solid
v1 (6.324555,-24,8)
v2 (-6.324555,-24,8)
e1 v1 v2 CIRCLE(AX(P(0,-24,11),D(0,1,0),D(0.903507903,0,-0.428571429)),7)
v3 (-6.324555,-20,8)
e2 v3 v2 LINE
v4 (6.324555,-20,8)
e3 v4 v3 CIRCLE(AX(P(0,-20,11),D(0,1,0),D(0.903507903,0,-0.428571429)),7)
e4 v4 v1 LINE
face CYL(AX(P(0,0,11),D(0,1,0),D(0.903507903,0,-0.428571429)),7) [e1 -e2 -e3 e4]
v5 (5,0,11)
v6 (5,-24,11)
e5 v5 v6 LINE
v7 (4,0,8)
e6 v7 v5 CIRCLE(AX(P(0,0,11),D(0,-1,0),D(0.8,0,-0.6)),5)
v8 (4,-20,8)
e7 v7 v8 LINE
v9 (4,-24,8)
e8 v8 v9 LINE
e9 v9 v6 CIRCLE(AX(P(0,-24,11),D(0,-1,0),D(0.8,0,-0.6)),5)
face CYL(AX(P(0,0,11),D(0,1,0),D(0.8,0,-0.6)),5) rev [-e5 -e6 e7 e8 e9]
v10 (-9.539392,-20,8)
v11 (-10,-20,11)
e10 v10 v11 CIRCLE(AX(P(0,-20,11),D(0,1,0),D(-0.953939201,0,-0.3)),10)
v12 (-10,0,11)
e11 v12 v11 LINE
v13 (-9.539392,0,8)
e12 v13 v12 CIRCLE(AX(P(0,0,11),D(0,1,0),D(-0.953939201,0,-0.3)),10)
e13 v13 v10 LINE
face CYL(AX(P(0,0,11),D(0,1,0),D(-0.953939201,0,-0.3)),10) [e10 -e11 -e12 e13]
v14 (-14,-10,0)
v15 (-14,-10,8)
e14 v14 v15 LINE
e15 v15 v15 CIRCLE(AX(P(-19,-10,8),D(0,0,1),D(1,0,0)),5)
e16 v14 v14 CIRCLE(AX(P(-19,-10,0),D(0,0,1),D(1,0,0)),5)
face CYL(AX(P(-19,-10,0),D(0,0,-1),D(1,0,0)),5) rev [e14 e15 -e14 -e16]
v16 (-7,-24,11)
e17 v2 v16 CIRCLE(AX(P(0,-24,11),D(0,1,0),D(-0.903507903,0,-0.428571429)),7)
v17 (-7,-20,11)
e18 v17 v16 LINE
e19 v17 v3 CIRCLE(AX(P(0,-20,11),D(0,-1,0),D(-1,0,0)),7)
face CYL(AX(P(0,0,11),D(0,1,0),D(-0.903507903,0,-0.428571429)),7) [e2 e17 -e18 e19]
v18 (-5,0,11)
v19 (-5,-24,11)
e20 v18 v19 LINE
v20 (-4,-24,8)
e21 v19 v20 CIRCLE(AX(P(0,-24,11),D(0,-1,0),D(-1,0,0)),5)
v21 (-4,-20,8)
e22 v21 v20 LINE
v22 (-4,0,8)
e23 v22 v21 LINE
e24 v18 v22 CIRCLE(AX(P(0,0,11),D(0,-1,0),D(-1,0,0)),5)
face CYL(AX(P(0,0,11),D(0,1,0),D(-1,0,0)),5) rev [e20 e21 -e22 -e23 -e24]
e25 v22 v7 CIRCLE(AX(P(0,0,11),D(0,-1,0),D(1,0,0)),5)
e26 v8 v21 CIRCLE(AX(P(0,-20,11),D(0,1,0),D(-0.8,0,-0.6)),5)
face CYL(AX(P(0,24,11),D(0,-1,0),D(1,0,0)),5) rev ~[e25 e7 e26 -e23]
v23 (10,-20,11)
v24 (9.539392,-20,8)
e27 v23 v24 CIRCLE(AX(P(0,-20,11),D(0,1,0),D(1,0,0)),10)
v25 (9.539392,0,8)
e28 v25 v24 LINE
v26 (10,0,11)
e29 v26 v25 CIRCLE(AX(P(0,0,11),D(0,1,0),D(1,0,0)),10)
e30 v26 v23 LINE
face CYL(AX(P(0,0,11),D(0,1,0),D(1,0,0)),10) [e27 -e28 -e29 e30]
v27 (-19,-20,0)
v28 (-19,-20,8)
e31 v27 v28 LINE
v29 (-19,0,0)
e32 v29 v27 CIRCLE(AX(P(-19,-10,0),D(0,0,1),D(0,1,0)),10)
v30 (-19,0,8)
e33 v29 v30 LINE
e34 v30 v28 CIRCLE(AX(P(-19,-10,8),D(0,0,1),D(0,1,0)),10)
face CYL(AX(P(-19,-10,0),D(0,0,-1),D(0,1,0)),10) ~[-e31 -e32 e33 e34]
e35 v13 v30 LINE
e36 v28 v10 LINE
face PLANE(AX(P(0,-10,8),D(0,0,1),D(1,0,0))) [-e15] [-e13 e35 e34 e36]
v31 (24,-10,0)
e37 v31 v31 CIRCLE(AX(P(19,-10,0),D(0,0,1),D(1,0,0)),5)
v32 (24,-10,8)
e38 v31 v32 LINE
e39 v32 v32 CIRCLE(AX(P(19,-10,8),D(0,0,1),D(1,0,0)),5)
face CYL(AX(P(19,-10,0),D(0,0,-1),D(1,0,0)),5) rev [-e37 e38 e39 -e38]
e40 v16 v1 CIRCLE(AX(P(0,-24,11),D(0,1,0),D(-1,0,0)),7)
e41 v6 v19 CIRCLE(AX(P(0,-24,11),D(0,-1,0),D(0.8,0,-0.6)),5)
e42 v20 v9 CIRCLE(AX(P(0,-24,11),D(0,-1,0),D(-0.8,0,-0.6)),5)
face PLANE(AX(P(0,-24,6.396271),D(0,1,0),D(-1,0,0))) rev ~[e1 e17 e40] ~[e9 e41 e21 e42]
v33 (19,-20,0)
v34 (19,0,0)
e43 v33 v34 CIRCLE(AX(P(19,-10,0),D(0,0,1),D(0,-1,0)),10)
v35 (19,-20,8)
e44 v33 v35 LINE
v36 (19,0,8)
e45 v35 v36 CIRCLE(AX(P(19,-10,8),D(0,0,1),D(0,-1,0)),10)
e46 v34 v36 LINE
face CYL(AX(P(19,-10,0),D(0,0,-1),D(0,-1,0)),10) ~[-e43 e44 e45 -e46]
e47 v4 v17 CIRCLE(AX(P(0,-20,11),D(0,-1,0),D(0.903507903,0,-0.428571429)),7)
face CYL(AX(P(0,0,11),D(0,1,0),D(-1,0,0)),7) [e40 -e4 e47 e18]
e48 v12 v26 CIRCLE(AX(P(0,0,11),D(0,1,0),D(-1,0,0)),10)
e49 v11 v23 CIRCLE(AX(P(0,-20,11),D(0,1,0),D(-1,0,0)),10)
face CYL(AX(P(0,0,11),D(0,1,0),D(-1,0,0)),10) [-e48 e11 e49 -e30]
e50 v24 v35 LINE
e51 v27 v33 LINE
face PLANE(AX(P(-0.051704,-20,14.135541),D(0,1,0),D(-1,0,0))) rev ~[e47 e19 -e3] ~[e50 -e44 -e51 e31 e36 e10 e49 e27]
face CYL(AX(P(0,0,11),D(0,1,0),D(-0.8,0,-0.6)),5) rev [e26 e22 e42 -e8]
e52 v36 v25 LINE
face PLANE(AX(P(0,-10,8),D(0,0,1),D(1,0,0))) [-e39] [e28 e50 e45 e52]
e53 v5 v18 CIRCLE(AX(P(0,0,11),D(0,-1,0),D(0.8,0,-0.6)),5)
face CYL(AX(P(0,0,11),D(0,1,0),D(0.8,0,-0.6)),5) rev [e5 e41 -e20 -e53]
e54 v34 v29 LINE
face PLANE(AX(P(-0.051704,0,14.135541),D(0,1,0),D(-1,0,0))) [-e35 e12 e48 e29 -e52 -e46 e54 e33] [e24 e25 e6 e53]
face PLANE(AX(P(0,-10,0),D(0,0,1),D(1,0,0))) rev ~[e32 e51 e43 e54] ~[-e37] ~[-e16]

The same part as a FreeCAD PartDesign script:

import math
import FreeCAD as App
import Part
import Sketcher
from FreeCAD import Vector
Q = App.Units.Quantity

doc = App.newDocument("Part")
body = doc.addObject("PartDesign::Body", "Body")

# Sketch on XY plane
sketch1 = body.newObject("Sketcher::SketchObject", "Sketch")
sketch1.AttachmentSupport = (doc.getObject("XY_Plane"), [""])
sketch1.MapMode = "FlatFace"
sketch1.addGeometry([
    Part.LineSegment(Vector(19, 0, 0), Vector(-19, 0, 0)),  # 0
    Part.ArcOfCircle(Part.Circle(Vector(-19, -10, 0), Vector(0, 0, 1), 10), math.radians(90), math.radians(270)),  # 1
    Part.LineSegment(Vector(-19, -20, 0), Vector(19, -20, 0)),  # 2
    Part.ArcOfCircle(Part.Circle(Vector(19, -10, 0), Vector(0, 0, 1), 10), math.radians(-90), math.radians(90)),  # 3
    Part.Circle(Vector(-19, -10, 0), Vector(0, 0, 1), 5),  # 4
    Part.Circle(Vector(19, -10, 0), Vector(0, 0, 1), 5),  # 5
], False)
sketch1.addConstraint([
    Sketcher.Constraint("Tangent", 0, 2, 1, 1),
    Sketcher.Constraint("Tangent", 1, 2, 2, 1),
    Sketcher.Constraint("Tangent", 2, 2, 3, 1),
    Sketcher.Constraint("Tangent", 3, 2, 0, 1),
    Sketcher.Constraint("Horizontal", 0),
    Sketcher.Constraint("Horizontal", 2),
    Sketcher.Constraint("Coincident", 4, 3, 1, 3),
    Sketcher.Constraint("Coincident", 5, 3, 3, 3),
    Sketcher.Constraint("Equal", 4, 5),
    Sketcher.Constraint("Symmetric", 0, 2, 3, 2, -1, 1),
    Sketcher.Constraint("Diameter", 4, Q("10 mm")),
    Sketcher.Constraint("Radius", 1, Q("10 mm")),
    Sketcher.Constraint("DistanceX", 0, 2, 0, 1, Q("38 mm")),
])
pad1 = body.newObject("PartDesign::Pad", "Pad")
pad1.Profile = sketch1
pad1.Length = 8

# Sketch on XZ plane
sketch2 = body.newObject("Sketcher::SketchObject", "Sketch001")
sketch2.AttachmentSupport = (doc.getObject("XZ_Plane"), [""])
sketch2.MapMode = "FlatFace"
sketch2.addGeometry([
    Part.ArcOfCircle(Part.Circle(Vector(0, 11, 0), Vector(0, 0, 1), 7), math.radians(-155), math.radians(-25)),  # 0
    Part.ArcOfCircle(Part.Circle(Vector(0, 11, 0), Vector(0, 0, 1), 7), math.radians(180), math.radians(205)),  # 1
    Part.ArcOfCircle(Part.Circle(Vector(0, 11, 0), Vector(0, 0, 1), 7), math.radians(-25), math.radians(180)),  # 2
    Part.ArcOfCircle(Part.Circle(Vector(0, 11, 0), Vector(0, 0, 1), 5), math.radians(-143), math.radians(-37)),  # 3
    Part.ArcOfCircle(Part.Circle(Vector(0, 11, 0), Vector(0, 0, 1), 5), math.radians(-37), math.radians(180)),  # 4
    Part.ArcOfCircle(Part.Circle(Vector(0, 11, 0), Vector(0, 0, 1), 5), math.radians(180), math.radians(217)),  # 5
], False)
sketch2.addConstraint([
    Sketcher.Constraint("Tangent", 0, 1, 1, 2),
    Sketcher.Constraint("Tangent", 1, 1, 2, 2),
    Sketcher.Constraint("Tangent", 2, 1, 0, 2),
    Sketcher.Constraint("Tangent", 3, 2, 4, 1),
    Sketcher.Constraint("Tangent", 4, 2, 5, 1),
    Sketcher.Constraint("Tangent", 5, 2, 3, 1),
    Sketcher.Constraint("Coincident", 3, 3, 0, 3),
    Sketcher.Constraint("Symmetric", 0, 1, 2, 1, -2),
    Sketcher.Constraint("Horizontal", 5, 3, 1, 1),
    Sketcher.Constraint("Horizontal", 2, 1, 3, 2),
    Sketcher.Constraint("Horizontal", 1, 1, 4, 2),
    Sketcher.Constraint("Horizontal", 3, 2, 5, 2),
    Sketcher.Constraint("Radius", 0, Q("7 mm")),
    Sketcher.Constraint("Radius", 3, Q("5 mm")),
    Sketcher.Constraint("DistanceY", -1, 1, 0, 3, Q("11 mm")),
    Sketcher.Constraint("DistanceY", -1, 1, 0, 1, Q("8 mm")),
])
pad2 = body.newObject("PartDesign::Pad", "Pad001")
pad2.Profile = sketch2
pad2.Length = 24

# Sketch on XZ plane
sketch3 = body.newObject("Sketcher::SketchObject", "Sketch002")
sketch3.AttachmentSupport = (doc.getObject("XZ_Plane"), [""])
sketch3.MapMode = "FlatFace"
sketch3.addGeometry([
    Part.LineSegment(Vector(9.5, 8, 0), Vector(6.3, 8, 0)),  # 0
    Part.ArcOfCircle(Part.Circle(Vector(0, 11, 0), Vector(0, 0, 1), 7), math.radians(-25), math.radians(180)),  # 1
    Part.ArcOfCircle(Part.Circle(Vector(0, 11, 0), Vector(0, 0, 1), 7), math.radians(180), math.radians(205)),  # 2
    Part.LineSegment(Vector(-6.3, 8, 0), Vector(-9.5, 8, 0)),  # 3
    Part.ArcOfCircle(Part.Circle(Vector(0, 11, 0), Vector(0, 0, 1), 10), math.radians(180), math.radians(197.46)),  # 4
    Part.ArcOfCircle(Part.Circle(Vector(0, 11, 0), Vector(0, 0, 1), 10), math.radians(0), math.radians(180)),  # 5
    Part.ArcOfCircle(Part.Circle(Vector(0, 11, 0), Vector(0, 0, 1), 10), math.radians(-17.46), math.radians(0)),  # 6
], False)
sketch3.addConstraint([
    Sketcher.Constraint("Coincident", 0, 2, 1, 1),
    Sketcher.Constraint("Tangent", 1, 2, 2, 1),
    Sketcher.Constraint("Coincident", 2, 2, 3, 1),
    Sketcher.Constraint("Coincident", 3, 2, 4, 2),
    Sketcher.Constraint("Tangent", 4, 1, 5, 2),
    Sketcher.Constraint("Tangent", 5, 1, 6, 2),
    Sketcher.Constraint("Coincident", 6, 1, 0, 1),
    Sketcher.Constraint("Horizontal", 0),
    Sketcher.Constraint("Horizontal", 3),
    Sketcher.Constraint("Coincident", 4, 3, 1, 3),
    Sketcher.Constraint("Equal", 1, 2),
    Sketcher.Constraint("Equal", 4, 5),
    Sketcher.Constraint("Equal", 5, 6),
    Sketcher.Constraint("Symmetric", 0, 2, 2, 2, -2),
    Sketcher.Constraint("Horizontal", 6, 3, 1, 2),
    Sketcher.Constraint("Horizontal", 1, 2, 4, 1),
    Sketcher.Constraint("Horizontal", 4, 1, 5, 1),
    Sketcher.Constraint("Radius", 1, Q("7 mm")),
    Sketcher.Constraint("Radius", 4, Q("10 mm")),
    Sketcher.Constraint("DistanceY", -1, 1, 1, 3, Q("11 mm")),
    Sketcher.Constraint("DistanceY", -1, 1, 0, 2, Q("8 mm")),
])
pad3 = body.newObject("PartDesign::Pad", "Pad002")
pad3.Profile = sketch3
pad3.Length = 20

# Sketch on XZ plane
sketch4 = body.newObject("Sketcher::SketchObject", "Sketch003")
sketch4.AttachmentSupport = (doc.getObject("XZ_Plane"), [""])
sketch4.MapMode = "FlatFace"
sketch4.addGeometry(Part.Circle(Vector(0, 11, 0), Vector(0, 0, 1), 5), False)
sketch4.addConstraint([
    Sketcher.Constraint("PointOnObject", 0, 3, -2),
    Sketcher.Constraint("Diameter", 0, Q("10 mm")),
    Sketcher.Constraint("DistanceY", -1, 1, 0, 3, Q("11 mm")),
])
doc.recompute()
hole = body.newObject("PartDesign::Hole", "Hole")
hole.Profile = sketch4
hole.ThreadType = "None"
hole.Diameter = 10
hole.DepthType = "Dimension"
hole.Depth = 24
hole.DrillPoint = "Angled"
hole.DrillPointAngle = 118
hole.Reversed = True

doc.recompute()
